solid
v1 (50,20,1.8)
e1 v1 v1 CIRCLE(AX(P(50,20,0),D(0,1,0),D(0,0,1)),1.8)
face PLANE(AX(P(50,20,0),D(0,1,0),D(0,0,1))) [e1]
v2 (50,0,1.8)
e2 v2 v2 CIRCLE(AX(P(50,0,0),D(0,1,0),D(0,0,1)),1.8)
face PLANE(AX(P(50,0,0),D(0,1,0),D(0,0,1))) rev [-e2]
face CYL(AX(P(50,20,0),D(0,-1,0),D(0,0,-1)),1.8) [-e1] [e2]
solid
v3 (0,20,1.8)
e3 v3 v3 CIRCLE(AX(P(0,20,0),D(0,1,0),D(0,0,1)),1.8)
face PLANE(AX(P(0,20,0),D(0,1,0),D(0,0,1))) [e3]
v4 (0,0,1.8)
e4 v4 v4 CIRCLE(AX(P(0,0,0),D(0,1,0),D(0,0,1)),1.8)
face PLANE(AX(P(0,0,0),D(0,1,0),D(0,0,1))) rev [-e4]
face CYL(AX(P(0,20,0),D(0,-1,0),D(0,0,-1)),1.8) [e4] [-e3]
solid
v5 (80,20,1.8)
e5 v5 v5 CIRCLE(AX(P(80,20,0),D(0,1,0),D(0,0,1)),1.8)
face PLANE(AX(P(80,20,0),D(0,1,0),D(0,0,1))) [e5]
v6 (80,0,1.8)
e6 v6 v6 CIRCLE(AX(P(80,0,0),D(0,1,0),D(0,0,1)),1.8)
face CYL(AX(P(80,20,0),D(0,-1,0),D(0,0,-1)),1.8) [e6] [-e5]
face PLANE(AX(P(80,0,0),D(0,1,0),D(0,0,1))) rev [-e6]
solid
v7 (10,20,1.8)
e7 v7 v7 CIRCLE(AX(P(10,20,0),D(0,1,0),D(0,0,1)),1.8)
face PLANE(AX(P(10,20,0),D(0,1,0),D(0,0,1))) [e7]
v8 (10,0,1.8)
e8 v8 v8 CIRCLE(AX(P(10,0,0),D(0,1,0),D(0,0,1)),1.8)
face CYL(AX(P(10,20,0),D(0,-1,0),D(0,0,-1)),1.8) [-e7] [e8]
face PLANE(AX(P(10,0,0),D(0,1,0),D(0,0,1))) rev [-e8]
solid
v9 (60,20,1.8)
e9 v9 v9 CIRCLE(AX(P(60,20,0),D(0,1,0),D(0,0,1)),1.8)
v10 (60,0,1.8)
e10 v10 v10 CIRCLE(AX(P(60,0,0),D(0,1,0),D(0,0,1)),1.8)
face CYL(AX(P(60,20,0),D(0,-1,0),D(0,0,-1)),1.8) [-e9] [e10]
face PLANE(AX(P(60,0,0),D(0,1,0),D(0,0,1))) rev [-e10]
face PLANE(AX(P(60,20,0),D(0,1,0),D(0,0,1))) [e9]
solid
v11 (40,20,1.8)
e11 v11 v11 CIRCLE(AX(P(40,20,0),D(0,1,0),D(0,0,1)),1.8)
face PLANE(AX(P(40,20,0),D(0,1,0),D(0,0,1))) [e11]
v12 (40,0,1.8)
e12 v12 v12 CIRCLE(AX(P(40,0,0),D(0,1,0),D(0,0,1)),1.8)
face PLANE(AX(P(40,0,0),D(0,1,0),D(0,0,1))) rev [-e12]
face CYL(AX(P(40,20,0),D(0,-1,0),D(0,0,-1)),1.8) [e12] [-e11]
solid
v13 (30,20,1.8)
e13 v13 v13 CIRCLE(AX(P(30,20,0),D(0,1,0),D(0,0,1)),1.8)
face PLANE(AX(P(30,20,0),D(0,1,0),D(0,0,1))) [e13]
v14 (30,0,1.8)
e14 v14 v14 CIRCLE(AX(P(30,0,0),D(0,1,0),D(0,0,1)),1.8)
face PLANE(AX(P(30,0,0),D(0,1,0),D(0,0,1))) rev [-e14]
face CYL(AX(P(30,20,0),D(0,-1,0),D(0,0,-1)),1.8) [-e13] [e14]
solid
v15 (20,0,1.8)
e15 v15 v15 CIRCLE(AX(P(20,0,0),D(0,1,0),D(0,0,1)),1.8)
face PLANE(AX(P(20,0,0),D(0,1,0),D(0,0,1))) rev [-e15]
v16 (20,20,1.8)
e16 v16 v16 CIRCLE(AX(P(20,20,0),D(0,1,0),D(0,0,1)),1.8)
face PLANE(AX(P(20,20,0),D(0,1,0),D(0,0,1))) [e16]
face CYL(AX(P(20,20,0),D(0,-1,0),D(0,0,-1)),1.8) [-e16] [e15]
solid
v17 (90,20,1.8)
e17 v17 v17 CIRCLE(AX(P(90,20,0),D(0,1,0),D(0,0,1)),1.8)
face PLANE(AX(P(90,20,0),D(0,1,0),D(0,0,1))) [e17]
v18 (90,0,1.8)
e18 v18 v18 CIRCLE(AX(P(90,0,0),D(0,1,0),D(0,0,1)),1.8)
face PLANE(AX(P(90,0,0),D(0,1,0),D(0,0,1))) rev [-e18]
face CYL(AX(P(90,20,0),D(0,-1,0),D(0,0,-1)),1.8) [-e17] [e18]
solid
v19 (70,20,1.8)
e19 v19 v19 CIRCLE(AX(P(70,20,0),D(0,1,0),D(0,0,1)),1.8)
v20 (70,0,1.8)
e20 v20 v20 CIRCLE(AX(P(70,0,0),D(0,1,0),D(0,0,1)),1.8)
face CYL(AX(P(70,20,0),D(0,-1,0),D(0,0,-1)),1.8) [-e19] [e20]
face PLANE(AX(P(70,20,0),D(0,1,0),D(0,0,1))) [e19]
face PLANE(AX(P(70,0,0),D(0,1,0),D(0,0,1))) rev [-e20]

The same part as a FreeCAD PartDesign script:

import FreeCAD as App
import Part
import Sketcher
from FreeCAD import Vector

doc = App.newDocument("Part")
params = doc.addObject("Spreadsheet::Sheet", "Params")
for row, (alias, value) in enumerate([
    ("sketch1_diameter", "3.6 mm"),
    ("pad1_length", "20 mm"),
    ("sketch2_diameter", "3.6 mm"),
    ("pad2_length", "20 mm"),
    ("sketch3_diameter", "3.6 mm"),
    ("pad3_length", "20 mm"),
    ("sketch4_diameter", "3.6 mm"),
    ("pad4_length", "20 mm"),
    ("sketch5_diameter", "3.6 mm"),
    ("pad5_length", "20 mm"),
    ("sketch6_diameter", "3.6 mm"),
    ("pad6_length", "20 mm"),
    ("sketch7_diameter", "3.6 mm"),
    ("pad7_length", "20 mm"),
    ("sketch8_diameter", "3.6 mm"),
    ("pad8_length", "20 mm"),
    ("sketch9_diameter", "3.6 mm"),
    ("pad9_length", "20 mm"),
    ("sketch10_diameter", "3.6 mm"),
    ("pad10_length", "20 mm"),
], start=1):
    params.set(f"A{row}", alias)
    params.set(f"B{row}", "=" + value)
    params.setAlias(f"B{row}", alias)

body = doc.addObject("PartDesign::Body", "Body")

# Sketch on XZ plane
sketch1 = body.newObject("Sketcher::SketchObject", "Sketch")
sketch1.AttachmentSupport = (doc.getObject("XZ_Plane"), [""])
sketch1.MapMode = "FlatFace"
sketch1.addGeometry(Part.Circle(Vector(0, 0, 0), Vector(0, 0, 1), 1.8), False)
sketch1.addConstraint([
    Sketcher.Constraint("Coincident", 0, 3, -1, 1),
    Sketcher.Constraint("Diameter", 0, 3.6),
])
sketch1.setExpression("Constraints[1]", "Params.sketch1_diameter")
pad1 = body.newObject("PartDesign::Pad", "Pad")
pad1.Profile = sketch1
pad1.setExpression("Length", "Params.pad1_length")
pad1.Reversed = True
body2 = doc.addObject("PartDesign::Body", "Body001")

# Sketch on XZ plane
sketch2 = body2.newObject("Sketcher::SketchObject", "Sketch001")
sketch2.AttachmentSupport = (doc.getObject("XZ_Plane001"), [""])
sketch2.MapMode = "FlatFace"
sketch2.addGeometry(Part.Circle(Vector(10, 0, 0), Vector(0, 0, 1), 1.8), False)
sketch2.addConstraint([
    Sketcher.Constraint("PointOnObject", 0, 3, -1),
    Sketcher.Constraint("Diameter", 0, 3.6),
    Sketcher.Constraint("DistanceX", -1, 1, 0, 3, 10.0),
])
sketch2.setExpression("Constraints[1]", "Params.sketch2_diameter")
pad2 = body2.newObject("PartDesign::Pad", "Pad001")
pad2.Profile = sketch2
pad2.setExpression("Length", "Params.pad2_length")
pad2.Reversed = True
body3 = doc.addObject("PartDesign::Body", "Body002")

# Sketch on XZ plane
sketch3 = body3.newObject("Sketcher::SketchObject", "Sketch002")
sketch3.AttachmentSupport = (doc.getObject("XZ_Plane002"), [""])
sketch3.MapMode = "FlatFace"
sketch3.addGeometry(Part.Circle(Vector(20, 0, 0), Vector(0, 0, 1), 1.8), False)
sketch3.addConstraint([
    Sketcher.Constraint("PointOnObject", 0, 3, -1),
    Sketcher.Constraint("Diameter", 0, 3.6),
    Sketcher.Constraint("DistanceX", -1, 1, 0, 3, 20.0),
])
sketch3.setExpression("Constraints[1]", "Params.sketch3_diameter")
pad3 = body3.newObject("PartDesign::Pad", "Pad002")
pad3.Profile = sketch3
pad3.setExpression("Length", "Params.pad3_length")
pad3.Reversed = True
body4 = doc.addObject("PartDesign::Body", "Body003")

# Sketch on XZ plane
sketch4 = body4.newObject("Sketcher::SketchObject", "Sketch003")
sketch4.AttachmentSupport = (doc.getObject("XZ_Plane003"), [""])
sketch4.MapMode = "FlatFace"
sketch4.addGeometry(Part.Circle(Vector(30, 0, 0), Vector(0, 0, 1), 1.8), False)
sketch4.addConstraint([
    Sketcher.Constraint("PointOnObject", 0, 3, -1),
    Sketcher.Constraint("Diameter", 0, 3.6),
    Sketcher.Constraint("DistanceX", -1, 1, 0, 3, 30.0),
])
sketch4.setExpression("Constraints[1]", "Params.sketch4_diameter")
pad4 = body4.newObject("PartDesign::Pad", "Pad003")
pad4.Profile = sketch4
pad4.setExpression("Length", "Params.pad4_length")
pad4.Reversed = True
body5 = doc.addObject("PartDesign::Body", "Body004")

# Sketch on XZ plane
sketch5 = body5.newObject("Sketcher::SketchObject", "Sketch004")
sketch5.AttachmentSupport = (doc.getObject("XZ_Plane004"), [""])
sketch5.MapMode = "FlatFace"
sketch5.addGeometry(Part.Circle(Vector(40, 0, 0), Vector(0, 0, 1), 1.8), False)
sketch5.addConstraint([
    Sketcher.Constraint("PointOnObject", 0, 3, -1),
    Sketcher.Constraint("Diameter", 0, 3.6),
    Sketcher.Constraint("DistanceX", -1, 1, 0, 3, 40.0),
])
sketch5.setExpression("Constraints[1]", "Params.sketch5_diameter")
pad5 = body5.newObject("PartDesign::Pad", "Pad004")
pad5.Profile = sketch5
pad5.setExpression("Length", "Params.pad5_length")
pad5.Reversed = True
body6 = doc.addObject("PartDesign::Body", "Body005")

# Sketch on XZ plane
sketch6 = body6.newObject("Sketcher::SketchObject", "Sketch005")
sketch6.AttachmentSupport = (doc.getObject("XZ_Plane005"), [""])
sketch6.MapMode = "FlatFace"
sketch6.addGeometry(Part.Circle(Vector(50, 0, 0), Vector(0, 0, 1), 1.8), False)
sketch6.addConstraint([
    Sketcher.Constraint("PointOnObject", 0, 3, -1),
    Sketcher.Constraint("Diameter", 0, 3.6),
    Sketcher.Constraint("DistanceX", -1, 1, 0, 3, 50.0),
])
sketch6.setExpression("Constraints[1]", "Params.sketch6_diameter")
pad6 = body6.newObject("PartDesign::Pad", "Pad005")
pad6.Profile = sketch6
pad6.setExpression("Length", "Params.pad6_length")
pad6.Reversed = True
body7 = doc.addObject("PartDesign::Body", "Body006")

# Sketch on XZ plane
sketch7 = body7.newObject("Sketcher::SketchObject", "Sketch006")
sketch7.AttachmentSupport = (doc.getObject("XZ_Plane006"), [""])
sketch7.MapMode = "FlatFace"
sketch7.addGeometry(Part.Circle(Vector(60, 0, 0), Vector(0, 0, 1), 1.8), False)
sketch7.addConstraint([
    Sketcher.Constraint("PointOnObject", 0, 3, -1),
    Sketcher.Constraint("Diameter", 0, 3.6),
    Sketcher.Constraint("DistanceX", -1, 1, 0, 3, 60.0),
])
sketch7.setExpression("Constraints[1]", "Params.sketch7_diameter")
pad7 = body7.newObject("PartDesign::Pad", "Pad006")
pad7.Profile = sketch7
pad7.setExpression("Length", "Params.pad7_length")
pad7.Reversed = True
body8 = doc.addObject("PartDesign::Body", "Body007")

# Sketch on XZ plane
sketch8 = body8.newObject("Sketcher::SketchObject", "Sketch007")
sketch8.AttachmentSupport = (doc.getObject("XZ_Plane007"), [""])
sketch8.MapMode = "FlatFace"
sketch8.addGeometry(Part.Circle(Vector(70, 0, 0), Vector(0, 0, 1), 1.8), False)
sketch8.addConstraint([
    Sketcher.Constraint("PointOnObject", 0, 3, -1),
    Sketcher.Constraint("Diameter", 0, 3.6),
    Sketcher.Constraint("DistanceX", -1, 1, 0, 3, 70.0),
])
sketch8.setExpression("Constraints[1]", "Params.sketch8_diameter")
pad8 = body8.newObject("PartDesign::Pad", "Pad007")
pad8.Profile = sketch8
pad8.setExpression("Length", "Params.pad8_length")
pad8.Reversed = True
body9 = doc.addObject("PartDesign::Body", "Body008")

# Sketch on XZ plane
sketch9 = body9.newObject("Sketcher::SketchObject", "Sketch008")
sketch9.AttachmentSupport = (doc.getObject("XZ_Plane008"), [""])
sketch9.MapMode = "FlatFace"
sketch9.addGeometry(Part.Circle(Vector(80, 0, 0), Vector(0, 0, 1), 1.8), False)
sketch9.addConstraint([
    Sketcher.Constraint("PointOnObject", 0, 3, -1),
    Sketcher.Constraint("Diameter", 0, 3.6),
    Sketcher.Constraint("DistanceX", -1, 1, 0, 3, 80.0),
])
sketch9.setExpression("Constraints[1]", "Params.sketch9_diameter")
pad9 = body9.newObject("PartDesign::Pad", "Pad008")
pad9.Profile = sketch9
pad9.setExpression("Length", "Params.pad9_length")
pad9.Reversed = True
body10 = doc.addObject("PartDesign::Body", "Body009")

# Sketch on XZ plane
sketch10 = body10.newObject("Sketcher::SketchObject", "Sketch009")
sketch10.AttachmentSupport = (doc.getObject("XZ_Plane009"), [""])
sketch10.MapMode = "FlatFace"
sketch10.addGeometry(Part.Circle(Vector(90, 0, 0), Vector(0, 0, 1), 1.8), False)
sketch10.addConstraint([
    Sketcher.Constraint("PointOnObject", 0, 3, -1),
    Sketcher.Constraint("Diameter", 0, 3.6),
    Sketcher.Constraint("DistanceX", -1, 1, 0, 3, 90.0),
])
sketch10.setExpression("Constraints[1]", "Params.sketch10_diameter")
pad10 = body10.newObject("PartDesign::Pad", "Pad009")
pad10.Profile = sketch10
pad10.setExpression("Length", "Params.pad10_length")
pad10.Reversed = True

doc.recompute()
